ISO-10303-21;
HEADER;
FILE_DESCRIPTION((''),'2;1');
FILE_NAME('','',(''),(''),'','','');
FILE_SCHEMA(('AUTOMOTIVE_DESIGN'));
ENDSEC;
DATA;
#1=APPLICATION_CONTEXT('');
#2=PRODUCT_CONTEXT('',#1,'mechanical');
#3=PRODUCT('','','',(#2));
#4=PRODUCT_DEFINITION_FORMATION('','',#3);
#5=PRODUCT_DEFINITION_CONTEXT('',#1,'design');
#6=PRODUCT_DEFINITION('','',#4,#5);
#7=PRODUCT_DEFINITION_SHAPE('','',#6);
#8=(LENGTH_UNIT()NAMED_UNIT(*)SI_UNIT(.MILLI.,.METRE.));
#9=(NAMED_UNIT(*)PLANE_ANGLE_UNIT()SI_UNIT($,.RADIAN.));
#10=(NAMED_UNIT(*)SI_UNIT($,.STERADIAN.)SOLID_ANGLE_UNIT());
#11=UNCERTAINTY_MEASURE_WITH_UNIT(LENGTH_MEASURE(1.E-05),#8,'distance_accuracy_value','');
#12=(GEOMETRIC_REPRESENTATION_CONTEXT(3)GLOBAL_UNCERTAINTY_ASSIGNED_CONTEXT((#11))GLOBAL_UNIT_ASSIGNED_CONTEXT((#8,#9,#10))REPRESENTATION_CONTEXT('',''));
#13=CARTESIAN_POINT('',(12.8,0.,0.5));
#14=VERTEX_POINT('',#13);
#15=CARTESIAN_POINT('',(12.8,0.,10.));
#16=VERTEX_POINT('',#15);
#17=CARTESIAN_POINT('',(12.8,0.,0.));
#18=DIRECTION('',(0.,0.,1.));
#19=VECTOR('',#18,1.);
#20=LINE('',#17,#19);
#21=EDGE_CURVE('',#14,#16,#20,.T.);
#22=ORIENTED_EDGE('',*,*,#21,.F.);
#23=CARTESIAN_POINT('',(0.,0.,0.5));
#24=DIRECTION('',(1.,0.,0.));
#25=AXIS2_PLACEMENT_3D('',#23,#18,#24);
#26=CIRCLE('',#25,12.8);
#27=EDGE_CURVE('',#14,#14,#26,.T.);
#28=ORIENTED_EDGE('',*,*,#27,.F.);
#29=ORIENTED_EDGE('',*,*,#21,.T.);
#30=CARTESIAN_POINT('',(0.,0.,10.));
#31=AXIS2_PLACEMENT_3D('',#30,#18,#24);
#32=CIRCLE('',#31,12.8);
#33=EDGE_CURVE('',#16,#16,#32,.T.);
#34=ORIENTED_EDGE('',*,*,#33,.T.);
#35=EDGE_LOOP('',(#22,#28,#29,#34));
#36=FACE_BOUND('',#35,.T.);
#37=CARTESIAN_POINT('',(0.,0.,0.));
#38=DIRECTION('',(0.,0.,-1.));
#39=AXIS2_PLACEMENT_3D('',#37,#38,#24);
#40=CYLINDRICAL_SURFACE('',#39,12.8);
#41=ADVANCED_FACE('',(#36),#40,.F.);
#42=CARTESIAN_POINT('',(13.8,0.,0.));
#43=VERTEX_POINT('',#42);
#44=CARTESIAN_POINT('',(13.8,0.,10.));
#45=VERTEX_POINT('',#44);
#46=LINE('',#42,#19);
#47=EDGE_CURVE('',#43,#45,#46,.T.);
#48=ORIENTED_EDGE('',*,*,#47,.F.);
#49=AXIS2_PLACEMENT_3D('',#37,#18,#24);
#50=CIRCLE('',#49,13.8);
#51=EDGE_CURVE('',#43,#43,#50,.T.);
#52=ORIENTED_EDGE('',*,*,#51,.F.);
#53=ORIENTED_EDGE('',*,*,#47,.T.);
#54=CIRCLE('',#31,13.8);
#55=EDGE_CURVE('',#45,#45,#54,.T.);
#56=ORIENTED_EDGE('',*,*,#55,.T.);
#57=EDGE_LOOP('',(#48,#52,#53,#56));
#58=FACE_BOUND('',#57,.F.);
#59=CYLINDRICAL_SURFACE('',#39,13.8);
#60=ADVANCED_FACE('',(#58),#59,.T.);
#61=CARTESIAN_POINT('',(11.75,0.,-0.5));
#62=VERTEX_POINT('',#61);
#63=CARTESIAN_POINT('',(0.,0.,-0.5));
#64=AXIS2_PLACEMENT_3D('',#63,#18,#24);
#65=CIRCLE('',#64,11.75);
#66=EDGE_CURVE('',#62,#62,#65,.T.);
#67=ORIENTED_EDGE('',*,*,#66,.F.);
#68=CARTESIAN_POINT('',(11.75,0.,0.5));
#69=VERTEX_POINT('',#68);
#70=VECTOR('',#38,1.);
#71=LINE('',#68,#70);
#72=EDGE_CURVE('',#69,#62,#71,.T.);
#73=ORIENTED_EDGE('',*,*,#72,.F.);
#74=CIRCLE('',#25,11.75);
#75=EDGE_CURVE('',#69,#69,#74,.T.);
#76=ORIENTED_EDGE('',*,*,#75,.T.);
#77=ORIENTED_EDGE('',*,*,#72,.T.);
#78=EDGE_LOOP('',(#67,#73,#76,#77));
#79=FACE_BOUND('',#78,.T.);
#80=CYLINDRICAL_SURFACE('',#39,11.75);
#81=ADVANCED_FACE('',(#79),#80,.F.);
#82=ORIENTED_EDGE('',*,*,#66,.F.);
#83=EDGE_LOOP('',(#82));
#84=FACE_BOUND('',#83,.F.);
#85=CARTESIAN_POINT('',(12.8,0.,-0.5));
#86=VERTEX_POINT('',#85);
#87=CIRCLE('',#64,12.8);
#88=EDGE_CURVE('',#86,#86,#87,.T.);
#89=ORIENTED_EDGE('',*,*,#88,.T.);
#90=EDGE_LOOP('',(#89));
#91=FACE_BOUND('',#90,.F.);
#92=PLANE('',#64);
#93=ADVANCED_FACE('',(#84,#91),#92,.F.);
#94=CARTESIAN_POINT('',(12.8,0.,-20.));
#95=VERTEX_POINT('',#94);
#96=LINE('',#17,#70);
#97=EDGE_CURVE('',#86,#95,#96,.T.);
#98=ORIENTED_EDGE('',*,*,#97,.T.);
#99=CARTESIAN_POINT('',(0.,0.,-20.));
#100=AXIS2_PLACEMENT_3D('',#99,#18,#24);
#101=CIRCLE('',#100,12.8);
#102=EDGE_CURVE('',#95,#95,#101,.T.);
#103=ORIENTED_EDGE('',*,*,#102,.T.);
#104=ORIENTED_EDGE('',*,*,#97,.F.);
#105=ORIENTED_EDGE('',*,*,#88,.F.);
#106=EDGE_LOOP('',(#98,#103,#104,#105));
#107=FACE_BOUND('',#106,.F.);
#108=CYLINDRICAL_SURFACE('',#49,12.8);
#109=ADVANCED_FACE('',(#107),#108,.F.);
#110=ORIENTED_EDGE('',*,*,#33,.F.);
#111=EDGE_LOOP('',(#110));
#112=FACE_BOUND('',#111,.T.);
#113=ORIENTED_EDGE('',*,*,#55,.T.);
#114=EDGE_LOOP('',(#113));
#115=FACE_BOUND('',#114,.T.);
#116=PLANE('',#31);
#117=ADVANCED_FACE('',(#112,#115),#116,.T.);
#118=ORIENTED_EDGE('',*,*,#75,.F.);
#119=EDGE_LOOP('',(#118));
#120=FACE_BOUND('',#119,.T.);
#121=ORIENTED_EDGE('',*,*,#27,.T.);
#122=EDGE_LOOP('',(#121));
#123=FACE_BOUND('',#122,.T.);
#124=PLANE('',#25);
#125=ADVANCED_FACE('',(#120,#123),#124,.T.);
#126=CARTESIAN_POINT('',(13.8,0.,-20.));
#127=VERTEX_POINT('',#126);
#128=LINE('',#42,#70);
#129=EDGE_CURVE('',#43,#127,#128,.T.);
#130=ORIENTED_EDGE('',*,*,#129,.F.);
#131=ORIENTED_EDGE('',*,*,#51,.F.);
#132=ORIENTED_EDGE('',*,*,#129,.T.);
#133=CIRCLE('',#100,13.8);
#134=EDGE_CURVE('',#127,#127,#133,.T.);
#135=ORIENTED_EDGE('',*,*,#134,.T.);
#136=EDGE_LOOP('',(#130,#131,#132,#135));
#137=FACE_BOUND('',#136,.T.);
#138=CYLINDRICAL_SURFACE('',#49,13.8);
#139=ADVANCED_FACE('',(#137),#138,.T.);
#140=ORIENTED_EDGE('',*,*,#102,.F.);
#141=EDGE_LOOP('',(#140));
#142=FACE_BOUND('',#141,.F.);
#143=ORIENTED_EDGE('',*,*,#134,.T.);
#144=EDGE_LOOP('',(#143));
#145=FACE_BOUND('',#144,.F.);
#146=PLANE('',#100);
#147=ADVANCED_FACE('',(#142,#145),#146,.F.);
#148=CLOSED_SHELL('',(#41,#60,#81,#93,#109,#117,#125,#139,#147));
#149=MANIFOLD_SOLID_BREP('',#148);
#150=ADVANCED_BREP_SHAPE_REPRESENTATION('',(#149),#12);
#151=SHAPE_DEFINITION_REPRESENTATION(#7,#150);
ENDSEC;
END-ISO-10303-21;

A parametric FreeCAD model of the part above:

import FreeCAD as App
import Part
import Sketcher
Q = App.Units.Quantity

doc = App.newDocument("Part")
params = doc.addObject("Spreadsheet::Sheet", "Params")
for row, (alias, value) in enumerate([
    ("sketch1_diameter", "25.6 mm"),
    ("sketch1_diameter2", "23.5 mm"),
    ("pad1_length", "1 mm"),
    ("sketch2_diameter", "27.6 mm"),
    ("sketch2_diameter2", "25.6 mm"),
    ("pad2_length", "10 mm"),
    ("pad2_length2", "20 mm"),
], start=1):
    params.set(f"A{row}", alias)
    params.set(f"B{row}", "=" + value)
    params.setAlias(f"B{row}", alias)

body = doc.addObject("PartDesign::Body", "Body")

sketch1 = body.newObject("Sketcher::SketchObject", "Sketch")
sketch1.AttachmentSupport = (doc.getObject("XY_Plane"), [""])
sketch1.MapMode = "FlatFace"
sketch1.addGeometry([
    Part.Circle(App.Vector(0, 0, 0), App.Vector(0, 0, 1), 12.8),
    Part.Circle(App.Vector(0, 0, 0), App.Vector(0, 0, 1), 11.75),
], False)
sketch1.addConstraint([
    Sketcher.Constraint("Coincident", 0, 3, -1, 1),
    Sketcher.Constraint("Coincident", 1, 3, -1, 1),
    Sketcher.Constraint("Diameter", 0, Q("25.6 mm")),
    Sketcher.Constraint("Diameter", 1, Q("23.5 mm")),
])
sketch1.setExpression("Constraints[2]", "Params.sketch1_diameter")
sketch1.setExpression("Constraints[3]", "Params.sketch1_diameter2")
pad1 = body.newObject("PartDesign::Pad", "Pad")
pad1.Profile = sketch1
pad1.setExpression("Length", "Params.pad1_length")
pad1.Midplane = True

sketch2 = body.newObject("Sketcher::SketchObject", "Sketch001")
sketch2.AttachmentSupport = (doc.getObject("XY_Plane"), [""])
sketch2.MapMode = "FlatFace"
sketch2.addGeometry([
    Part.Circle(App.Vector(0, 0, 0), App.Vector(0, 0, 1), 13.8),
    Part.Circle(App.Vector(0, 0, 0), App.Vector(0, 0, 1), 12.8),
], False)
sketch2.addConstraint([
    Sketcher.Constraint("Coincident", 0, 3, -1, 1),
    Sketcher.Constraint("Coincident", 1, 3, -1, 1),
    Sketcher.Constraint("Diameter", 0, Q("27.6 mm")),
    Sketcher.Constraint("Diameter", 1, Q("25.6 mm")),
])
sketch2.setExpression("Constraints[2]", "Params.sketch2_diameter")
sketch2.setExpression("Constraints[3]", "Params.sketch2_diameter2")
pad2 = body.newObject("PartDesign::Pad", "Pad001")
pad2.Profile = sketch2
pad2.Type = "TwoLengths"
pad2.setExpression("Length", "Params.pad2_length")
pad2.setExpression("Length2", "Params.pad2_length2")

doc.recompute()
